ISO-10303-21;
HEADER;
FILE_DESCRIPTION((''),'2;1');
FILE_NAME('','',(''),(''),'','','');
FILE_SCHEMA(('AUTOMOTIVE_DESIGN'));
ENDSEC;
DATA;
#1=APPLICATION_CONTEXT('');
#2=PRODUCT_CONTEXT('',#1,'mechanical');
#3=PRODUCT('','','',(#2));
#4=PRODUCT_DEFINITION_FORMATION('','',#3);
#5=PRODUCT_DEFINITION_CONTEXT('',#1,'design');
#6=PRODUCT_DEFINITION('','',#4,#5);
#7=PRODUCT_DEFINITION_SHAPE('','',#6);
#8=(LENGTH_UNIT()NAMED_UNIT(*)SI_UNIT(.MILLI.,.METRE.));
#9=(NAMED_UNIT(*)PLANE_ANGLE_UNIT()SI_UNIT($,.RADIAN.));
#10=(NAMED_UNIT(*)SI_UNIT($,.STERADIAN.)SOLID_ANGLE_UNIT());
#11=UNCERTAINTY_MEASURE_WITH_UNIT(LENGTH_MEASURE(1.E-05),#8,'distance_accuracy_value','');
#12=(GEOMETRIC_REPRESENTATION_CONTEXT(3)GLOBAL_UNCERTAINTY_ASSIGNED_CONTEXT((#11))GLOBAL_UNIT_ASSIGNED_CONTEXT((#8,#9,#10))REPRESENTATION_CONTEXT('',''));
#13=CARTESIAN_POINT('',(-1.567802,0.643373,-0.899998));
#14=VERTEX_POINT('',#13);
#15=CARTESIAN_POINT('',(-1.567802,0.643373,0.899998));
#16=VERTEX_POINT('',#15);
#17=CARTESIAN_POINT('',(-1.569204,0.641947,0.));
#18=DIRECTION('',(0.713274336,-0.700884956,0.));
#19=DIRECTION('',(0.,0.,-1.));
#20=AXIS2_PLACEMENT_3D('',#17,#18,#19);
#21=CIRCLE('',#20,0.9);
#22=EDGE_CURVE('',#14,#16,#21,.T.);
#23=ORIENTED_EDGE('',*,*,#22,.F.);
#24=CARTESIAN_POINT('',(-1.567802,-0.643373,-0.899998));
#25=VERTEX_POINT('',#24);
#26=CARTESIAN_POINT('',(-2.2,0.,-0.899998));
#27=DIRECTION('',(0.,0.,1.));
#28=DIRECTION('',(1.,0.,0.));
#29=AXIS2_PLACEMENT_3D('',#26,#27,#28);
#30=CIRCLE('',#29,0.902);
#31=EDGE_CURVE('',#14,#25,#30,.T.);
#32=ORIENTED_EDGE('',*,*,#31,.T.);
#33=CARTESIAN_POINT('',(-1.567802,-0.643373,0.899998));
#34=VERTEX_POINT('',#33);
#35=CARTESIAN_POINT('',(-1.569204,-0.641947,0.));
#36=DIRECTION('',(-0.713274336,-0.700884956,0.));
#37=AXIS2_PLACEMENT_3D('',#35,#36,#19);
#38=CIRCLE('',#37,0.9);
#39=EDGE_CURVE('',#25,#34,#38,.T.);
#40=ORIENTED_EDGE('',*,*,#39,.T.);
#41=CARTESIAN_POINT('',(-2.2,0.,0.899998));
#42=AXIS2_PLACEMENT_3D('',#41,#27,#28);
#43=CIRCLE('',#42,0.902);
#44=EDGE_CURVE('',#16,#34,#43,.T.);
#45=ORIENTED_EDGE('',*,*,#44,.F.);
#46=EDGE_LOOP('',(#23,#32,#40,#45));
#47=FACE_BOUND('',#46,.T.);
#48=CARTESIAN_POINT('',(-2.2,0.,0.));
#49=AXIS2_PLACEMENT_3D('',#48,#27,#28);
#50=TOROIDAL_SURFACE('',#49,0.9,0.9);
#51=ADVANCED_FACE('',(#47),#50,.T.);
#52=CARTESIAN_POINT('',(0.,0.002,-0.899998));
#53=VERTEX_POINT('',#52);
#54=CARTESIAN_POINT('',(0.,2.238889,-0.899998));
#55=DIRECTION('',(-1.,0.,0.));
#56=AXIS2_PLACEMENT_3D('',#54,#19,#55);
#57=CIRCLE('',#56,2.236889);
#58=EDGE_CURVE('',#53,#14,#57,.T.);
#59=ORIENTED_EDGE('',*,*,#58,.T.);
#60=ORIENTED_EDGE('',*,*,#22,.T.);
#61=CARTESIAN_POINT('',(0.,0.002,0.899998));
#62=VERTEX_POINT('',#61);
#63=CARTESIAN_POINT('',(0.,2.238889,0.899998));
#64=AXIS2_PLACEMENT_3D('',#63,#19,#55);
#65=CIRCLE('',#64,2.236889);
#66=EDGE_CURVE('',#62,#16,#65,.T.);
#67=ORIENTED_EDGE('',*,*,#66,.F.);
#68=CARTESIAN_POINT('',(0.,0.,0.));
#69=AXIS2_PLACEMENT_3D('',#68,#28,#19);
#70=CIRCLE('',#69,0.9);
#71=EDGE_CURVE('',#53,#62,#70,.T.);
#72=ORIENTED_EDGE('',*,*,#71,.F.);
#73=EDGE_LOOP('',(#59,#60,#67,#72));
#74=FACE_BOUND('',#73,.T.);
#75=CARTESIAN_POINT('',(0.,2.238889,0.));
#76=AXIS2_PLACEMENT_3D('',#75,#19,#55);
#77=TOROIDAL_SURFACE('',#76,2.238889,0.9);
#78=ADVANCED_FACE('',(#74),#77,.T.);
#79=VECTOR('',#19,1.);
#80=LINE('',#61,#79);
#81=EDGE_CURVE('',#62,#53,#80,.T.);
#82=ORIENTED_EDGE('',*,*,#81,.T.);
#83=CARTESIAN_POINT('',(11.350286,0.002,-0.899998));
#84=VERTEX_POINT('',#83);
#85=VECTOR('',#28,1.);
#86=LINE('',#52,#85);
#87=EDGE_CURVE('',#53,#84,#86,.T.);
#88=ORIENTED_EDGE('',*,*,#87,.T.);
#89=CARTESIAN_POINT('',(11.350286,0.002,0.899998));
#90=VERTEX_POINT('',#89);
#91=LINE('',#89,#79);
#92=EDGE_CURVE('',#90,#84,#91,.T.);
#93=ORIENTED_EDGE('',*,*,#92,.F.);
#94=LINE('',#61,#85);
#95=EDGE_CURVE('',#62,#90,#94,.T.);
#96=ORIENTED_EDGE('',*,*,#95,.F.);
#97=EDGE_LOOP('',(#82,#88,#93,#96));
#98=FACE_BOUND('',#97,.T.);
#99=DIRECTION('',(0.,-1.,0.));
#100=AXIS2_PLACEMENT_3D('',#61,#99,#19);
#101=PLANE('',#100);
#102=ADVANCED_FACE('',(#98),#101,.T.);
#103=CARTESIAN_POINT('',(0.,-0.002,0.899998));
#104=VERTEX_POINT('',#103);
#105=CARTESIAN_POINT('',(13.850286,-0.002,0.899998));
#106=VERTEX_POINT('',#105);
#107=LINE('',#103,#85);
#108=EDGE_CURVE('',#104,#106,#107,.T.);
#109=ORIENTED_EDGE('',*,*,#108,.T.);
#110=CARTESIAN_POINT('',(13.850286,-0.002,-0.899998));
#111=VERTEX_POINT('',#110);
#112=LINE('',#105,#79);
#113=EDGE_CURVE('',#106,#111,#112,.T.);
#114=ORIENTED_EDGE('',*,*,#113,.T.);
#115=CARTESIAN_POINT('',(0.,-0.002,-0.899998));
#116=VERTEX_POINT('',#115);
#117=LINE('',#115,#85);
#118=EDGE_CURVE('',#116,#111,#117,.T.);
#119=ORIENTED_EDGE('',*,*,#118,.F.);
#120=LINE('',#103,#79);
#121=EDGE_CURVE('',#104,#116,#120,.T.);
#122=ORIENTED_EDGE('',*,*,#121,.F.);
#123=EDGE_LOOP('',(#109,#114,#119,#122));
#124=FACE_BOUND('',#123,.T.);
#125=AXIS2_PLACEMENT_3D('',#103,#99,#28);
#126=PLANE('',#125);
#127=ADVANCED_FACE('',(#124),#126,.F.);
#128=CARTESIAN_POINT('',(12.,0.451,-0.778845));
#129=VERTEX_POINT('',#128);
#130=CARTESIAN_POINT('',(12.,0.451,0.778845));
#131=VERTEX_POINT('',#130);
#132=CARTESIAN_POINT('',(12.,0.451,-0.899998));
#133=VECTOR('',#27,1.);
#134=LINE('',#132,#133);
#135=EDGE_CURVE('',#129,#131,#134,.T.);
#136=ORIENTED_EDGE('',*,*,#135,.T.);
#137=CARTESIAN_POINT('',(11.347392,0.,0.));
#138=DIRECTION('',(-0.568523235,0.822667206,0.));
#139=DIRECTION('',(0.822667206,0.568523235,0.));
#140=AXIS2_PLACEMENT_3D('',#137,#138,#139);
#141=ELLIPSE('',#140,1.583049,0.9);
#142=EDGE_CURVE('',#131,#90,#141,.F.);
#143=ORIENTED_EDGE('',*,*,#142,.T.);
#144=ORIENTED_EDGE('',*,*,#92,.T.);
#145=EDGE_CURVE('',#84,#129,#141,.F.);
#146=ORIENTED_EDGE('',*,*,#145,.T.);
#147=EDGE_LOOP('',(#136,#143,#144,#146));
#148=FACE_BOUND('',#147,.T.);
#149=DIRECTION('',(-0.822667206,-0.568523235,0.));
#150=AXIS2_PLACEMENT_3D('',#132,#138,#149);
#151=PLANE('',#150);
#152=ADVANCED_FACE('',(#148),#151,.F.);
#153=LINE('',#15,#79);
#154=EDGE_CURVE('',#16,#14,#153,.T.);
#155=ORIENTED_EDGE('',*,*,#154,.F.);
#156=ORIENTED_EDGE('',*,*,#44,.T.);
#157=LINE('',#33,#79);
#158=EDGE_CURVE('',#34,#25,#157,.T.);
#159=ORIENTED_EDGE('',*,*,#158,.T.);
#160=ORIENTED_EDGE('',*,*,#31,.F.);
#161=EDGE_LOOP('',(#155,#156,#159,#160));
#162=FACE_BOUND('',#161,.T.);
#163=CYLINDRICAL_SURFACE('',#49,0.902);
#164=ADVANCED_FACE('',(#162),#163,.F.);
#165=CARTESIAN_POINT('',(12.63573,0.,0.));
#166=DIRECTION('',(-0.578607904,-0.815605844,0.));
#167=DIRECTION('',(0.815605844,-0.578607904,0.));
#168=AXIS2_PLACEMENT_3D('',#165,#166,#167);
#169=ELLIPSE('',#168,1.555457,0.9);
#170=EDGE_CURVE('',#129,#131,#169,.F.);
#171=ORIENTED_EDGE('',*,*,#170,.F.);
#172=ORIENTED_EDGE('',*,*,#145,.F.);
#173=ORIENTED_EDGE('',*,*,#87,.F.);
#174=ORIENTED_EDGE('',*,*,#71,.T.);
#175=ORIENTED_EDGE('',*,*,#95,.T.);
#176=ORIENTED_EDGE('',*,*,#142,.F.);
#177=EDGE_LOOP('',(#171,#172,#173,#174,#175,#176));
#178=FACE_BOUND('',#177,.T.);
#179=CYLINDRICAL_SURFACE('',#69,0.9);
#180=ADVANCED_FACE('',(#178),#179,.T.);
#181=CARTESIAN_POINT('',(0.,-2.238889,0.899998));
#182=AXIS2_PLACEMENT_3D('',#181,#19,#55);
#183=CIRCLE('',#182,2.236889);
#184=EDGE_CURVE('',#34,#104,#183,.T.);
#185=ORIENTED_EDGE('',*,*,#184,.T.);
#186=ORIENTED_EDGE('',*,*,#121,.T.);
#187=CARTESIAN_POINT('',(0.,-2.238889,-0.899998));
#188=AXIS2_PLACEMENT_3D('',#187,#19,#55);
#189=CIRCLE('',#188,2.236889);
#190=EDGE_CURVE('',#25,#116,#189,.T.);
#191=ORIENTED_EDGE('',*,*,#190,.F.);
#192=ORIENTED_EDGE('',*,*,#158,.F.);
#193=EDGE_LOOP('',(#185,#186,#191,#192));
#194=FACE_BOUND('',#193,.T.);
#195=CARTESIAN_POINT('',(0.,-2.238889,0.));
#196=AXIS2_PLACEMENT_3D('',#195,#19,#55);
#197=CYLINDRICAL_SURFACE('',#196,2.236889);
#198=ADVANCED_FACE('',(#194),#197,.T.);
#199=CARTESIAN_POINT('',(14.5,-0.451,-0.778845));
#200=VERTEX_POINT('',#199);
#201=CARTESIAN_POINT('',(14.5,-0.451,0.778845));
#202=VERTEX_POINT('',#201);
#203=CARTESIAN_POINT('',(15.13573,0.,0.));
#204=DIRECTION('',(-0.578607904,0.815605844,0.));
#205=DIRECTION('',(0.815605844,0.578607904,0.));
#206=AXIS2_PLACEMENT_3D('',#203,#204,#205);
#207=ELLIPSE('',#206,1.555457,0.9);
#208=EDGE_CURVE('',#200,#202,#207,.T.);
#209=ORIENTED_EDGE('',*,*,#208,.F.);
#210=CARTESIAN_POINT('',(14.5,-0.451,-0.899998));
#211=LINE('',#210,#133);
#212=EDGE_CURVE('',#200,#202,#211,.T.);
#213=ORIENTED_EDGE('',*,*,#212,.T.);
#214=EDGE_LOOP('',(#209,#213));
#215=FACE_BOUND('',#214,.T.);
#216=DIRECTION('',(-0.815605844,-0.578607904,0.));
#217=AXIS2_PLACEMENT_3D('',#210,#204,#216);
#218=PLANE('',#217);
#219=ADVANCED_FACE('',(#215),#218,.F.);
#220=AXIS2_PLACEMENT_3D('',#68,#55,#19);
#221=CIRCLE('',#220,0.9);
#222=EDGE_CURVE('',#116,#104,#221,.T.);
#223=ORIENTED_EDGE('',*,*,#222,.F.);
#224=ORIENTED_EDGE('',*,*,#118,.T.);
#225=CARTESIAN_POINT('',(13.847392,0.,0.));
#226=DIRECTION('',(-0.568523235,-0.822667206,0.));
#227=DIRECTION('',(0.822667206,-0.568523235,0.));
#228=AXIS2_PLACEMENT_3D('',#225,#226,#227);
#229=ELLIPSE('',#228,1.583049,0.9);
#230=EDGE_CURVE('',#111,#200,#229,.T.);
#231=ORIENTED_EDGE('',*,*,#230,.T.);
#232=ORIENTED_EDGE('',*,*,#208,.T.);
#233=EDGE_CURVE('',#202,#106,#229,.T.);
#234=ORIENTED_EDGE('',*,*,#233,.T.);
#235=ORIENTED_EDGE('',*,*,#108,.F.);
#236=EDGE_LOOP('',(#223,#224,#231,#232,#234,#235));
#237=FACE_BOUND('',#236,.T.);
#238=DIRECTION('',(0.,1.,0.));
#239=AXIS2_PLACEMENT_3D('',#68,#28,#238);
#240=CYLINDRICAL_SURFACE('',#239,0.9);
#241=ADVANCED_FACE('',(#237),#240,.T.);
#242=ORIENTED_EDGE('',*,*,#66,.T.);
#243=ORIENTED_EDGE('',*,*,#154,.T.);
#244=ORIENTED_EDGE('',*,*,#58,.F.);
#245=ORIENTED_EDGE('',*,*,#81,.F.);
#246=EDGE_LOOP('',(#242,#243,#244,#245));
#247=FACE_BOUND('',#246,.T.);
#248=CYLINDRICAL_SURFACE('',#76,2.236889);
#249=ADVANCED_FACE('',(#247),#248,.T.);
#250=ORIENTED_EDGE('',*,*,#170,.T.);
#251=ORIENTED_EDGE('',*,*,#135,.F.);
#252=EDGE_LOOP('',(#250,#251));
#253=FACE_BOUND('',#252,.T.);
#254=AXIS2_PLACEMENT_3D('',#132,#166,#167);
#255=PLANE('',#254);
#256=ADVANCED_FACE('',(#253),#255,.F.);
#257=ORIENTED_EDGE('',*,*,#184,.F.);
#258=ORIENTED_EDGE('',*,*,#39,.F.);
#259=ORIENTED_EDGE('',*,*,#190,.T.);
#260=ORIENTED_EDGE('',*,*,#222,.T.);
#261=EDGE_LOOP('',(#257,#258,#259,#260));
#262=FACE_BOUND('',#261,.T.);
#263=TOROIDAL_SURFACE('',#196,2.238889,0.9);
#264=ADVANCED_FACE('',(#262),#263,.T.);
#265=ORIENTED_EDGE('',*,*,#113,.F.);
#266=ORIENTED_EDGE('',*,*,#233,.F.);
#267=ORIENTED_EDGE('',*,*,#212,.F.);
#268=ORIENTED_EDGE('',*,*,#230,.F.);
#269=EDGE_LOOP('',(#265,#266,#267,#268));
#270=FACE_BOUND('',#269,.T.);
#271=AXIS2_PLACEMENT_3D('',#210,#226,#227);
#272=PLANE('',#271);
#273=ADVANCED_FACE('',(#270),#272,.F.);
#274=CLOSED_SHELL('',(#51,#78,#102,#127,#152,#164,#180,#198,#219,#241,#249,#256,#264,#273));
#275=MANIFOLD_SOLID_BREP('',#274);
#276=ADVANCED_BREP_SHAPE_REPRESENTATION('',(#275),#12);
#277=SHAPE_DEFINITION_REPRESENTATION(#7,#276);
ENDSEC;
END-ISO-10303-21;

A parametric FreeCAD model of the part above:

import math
import FreeCAD as App
import Part
import Sketcher

V = App.Vector
Q = App.Units.Quantity

doc = App.newDocument("Part")
body = doc.addObject("PartDesign::Body", "Body")

sketch1 = body.newObject("Sketcher::SketchObject", "Sketch")
sketch1.AttachmentSupport = (doc.getObject("YZ_Plane"), [""])
sketch1.MapMode = "FlatFace"
sketch1.AttachmentOffset = App.Placement(V(0, 0, 12), App.Rotation())
sketch1.addGeometry(Part.LineSegment(V(0, 0.9, 0), V(0, -0.9, 0)), False)
sketch1.addGeometry(Part.ArcOfCircle(Part.Circle(V(0, 0, 0), V(0, 0, 1), 0.9), math.radians(-90), math.radians(90)), False)
sketch1.addConstraint(Sketcher.Constraint("Coincident", 0, 1, 1, 2))
sketch1.addConstraint(Sketcher.Constraint("Coincident", 1, 1, 0, 2))
sketch1.addConstraint(Sketcher.Constraint("Vertical", 0))
sketch1.addConstraint(Sketcher.Constraint("Coincident", 1, 3, -1, 1))
sketch1.addConstraint(Sketcher.Constraint("Radius", 1, Q("0.9 mm")))
sketch1.addConstraint(Sketcher.Constraint("DistanceX", -1, 1, 0, 1, Q("0.002 mm")))

sketch2 = body.newObject("Sketcher::SketchObject", "Sketch001")
sketch2.AttachmentSupport = (doc.getObject("XY_Plane"), [""])
sketch2.MapMode = "FlatFace"
sketch2.addGeometry(Part.LineSegment(V(12, 0.9, 0), V(0, 0.9, 0)), False)
sketch2.addGeometry(Part.ArcOfCircle(Part.Circle(V(0, 2.2, 0), V(0, 0, 1), 1.3), math.radians(-134), math.radians(-90)), False)
sketch2.addGeometry(Part.ArcOfCircle(Part.Circle(V(-2.2, 0, 0), V(0, 0, 1), 1.8), math.radians(46), math.radians(314)), False)
sketch2.addGeometry(Part.ArcOfCircle(Part.Circle(V(0, -2.2, 0), V(0, 0, 1), 1.3), math.radians(90), math.radians(134)), False)
sketch2.addGeometry(Part.LineSegment(V(0, -0.9, 0), V(14.5, -0.9, 0)), False)
sketch2.addConstraint(Sketcher.Constraint("Tangent", 0, 2, 1, 2))
sketch2.addConstraint(Sketcher.Constraint("Tangent", 1, 1, 2, 1))
sketch2.addConstraint(Sketcher.Constraint("Tangent", 2, 2, 3, 2))
sketch2.addConstraint(Sketcher.Constraint("Tangent", 3, 1, 4, 1))
sketch2.addConstraint(Sketcher.Constraint("Horizontal", 0))
sketch2.addConstraint(Sketcher.Constraint("Horizontal", 4))
sketch2.addConstraint(Sketcher.Constraint("Equal", 1, 3))
sketch2.addConstraint(Sketcher.Constraint("Symmetric", 1, 3, 3, 3, -1, 1))
sketch2.addConstraint(Sketcher.Constraint("PointOnObject", 1, 3, -2))
sketch2.addConstraint(Sketcher.Constraint("Radius", 2, Q("1.8 mm")))
sketch2.addConstraint(Sketcher.Constraint("DistanceX", 0, 2, 0, 1, Q("12 mm")))
sketch2.addConstraint(Sketcher.Constraint("DistanceX", 4, 1, 4, 2, Q("14.5 mm")))
sketch2.addConstraint(Sketcher.Constraint("DistanceX", 2, 3, -1, 1, Q("2.2 mm")))
sketch2.addConstraint(Sketcher.Constraint("DistanceY", -1, 1, 0, 1, Q("0.9 mm")))
doc.recompute()

additivepipe = body.newObject("PartDesign::AdditivePipe", "AdditivePipe")
additivepipe.Profile = sketch1
additivepipe.Spine = (sketch2, ["Edge1", "Edge2", "Edge3", "Edge4", "Edge5"])

sketch3 = body.newObject("Sketcher::SketchObject", "Sketch002")
sketch3.AttachmentSupport = (doc.getObject("XY_Plane"), [""])
sketch3.MapMode = "FlatFace"
sketch3.addGeometry(Part.LineSegment(V(11.352993, 0.91, 0), V(12, 0.451, 0)), False)
sketch3.addGeometry(Part.LineSegment(V(12, 0.451, 0), V(11.347392, 0, 0)), False)
sketch3.addGeometry(Part.LineSegment(V(11.347392, 0, 0), V(13.847392, 0, 0)), False)
sketch3.addGeometry(Part.LineSegment(V(13.847392, 0, 0), V(14.5, -0.451, 0)), False)
sketch3.addGeometry(Part.LineSegment(V(14.5, -0.451, 0), V(13.852993, -0.91, 0)), False)
sketch3.addGeometry(Part.LineSegment(V(13.852993, -0.91, 0), V(14.51, -0.91, 0)), False)
sketch3.addGeometry(Part.LineSegment(V(14.51, -0.91, 0), V(14.51, 0.91, 0)), False)
sketch3.addGeometry(Part.LineSegment(V(14.51, 0.91, 0), V(11.352993, 0.91, 0)), False)
sketch3.addConstraint(Sketcher.Constraint("Coincident", 0, 2, 1, 1))
sketch3.addConstraint(Sketcher.Constraint("Coincident", 1, 2, 2, 1))
sketch3.addConstraint(Sketcher.Constraint("Coincident", 2, 2, 3, 1))
sketch3.addConstraint(Sketcher.Constraint("Coincident", 3, 2, 4, 1))
sketch3.addConstraint(Sketcher.Constraint("Coincident", 4, 2, 5, 1))
sketch3.addConstraint(Sketcher.Constraint("Coincident", 5, 2, 6, 1))
sketch3.addConstraint(Sketcher.Constraint("Coincident", 6, 2, 7, 1))
sketch3.addConstraint(Sketcher.Constraint("Coincident", 7, 2, 0, 1))
sketch3.addConstraint(Sketcher.Constraint("Horizontal", 2))
sketch3.addConstraint(Sketcher.Constraint("Horizontal", 5))
sketch3.addConstraint(Sketcher.Constraint("Vertical", 6))
sketch3.addConstraint(Sketcher.Constraint("Horizontal", 7))
sketch3.addConstraint(Sketcher.Constraint("PointOnObject", 1, 2, -1))
sketch3.addConstraint(Sketcher.Constraint("DistanceX", 2, 1, 2, 2, Q("2.5 mm")))
sketch3.addConstraint(Sketcher.Constraint("DistanceX", -1, 1, 0, 2, Q("12 mm")))
sketch3.addConstraint(Sketcher.Constraint("DistanceY", 6, 1, 6, 2, Q("1.82 mm")))
sketch3.addConstraint(Sketcher.Constraint("DistanceX", -1, 1, 3, 2, Q("14.5 mm")))
sketch3.addConstraint(Sketcher.Constraint("DistanceX", 7, 2, 4, 2, Q("2.5 mm")))
sketch3.addConstraint(Sketcher.Constraint("DistanceY", 4, 2, -1, 1, Q("0.91 mm")))
sketch3.addConstraint(Sketcher.Constraint("DistanceX", -1, 1, 5, 2, Q("14.51 mm")))
sketch3.addConstraint(Sketcher.Constraint("DistanceY", -1, 1, 0, 2, Q("0.451 mm")))
sketch3.addConstraint(Sketcher.Constraint("DistanceY", 3, 2, -1, 1, Q("0.451 mm")))
sketch3.addConstraint(Sketcher.Constraint("DistanceX", 2, 2, 4, 2, Q("0.005602 mm")))
sketch3.addConstraint(Sketcher.Constraint("DistanceX", 5, 1, 5, 2, Q("0.657007 mm")))
pocket1 = body.newObject("PartDesign::Pocket", "Pocket")
pocket1.Profile = sketch3
pocket1.Type = "ThroughAll"
pocket1.Midplane = True

doc.recompute()
